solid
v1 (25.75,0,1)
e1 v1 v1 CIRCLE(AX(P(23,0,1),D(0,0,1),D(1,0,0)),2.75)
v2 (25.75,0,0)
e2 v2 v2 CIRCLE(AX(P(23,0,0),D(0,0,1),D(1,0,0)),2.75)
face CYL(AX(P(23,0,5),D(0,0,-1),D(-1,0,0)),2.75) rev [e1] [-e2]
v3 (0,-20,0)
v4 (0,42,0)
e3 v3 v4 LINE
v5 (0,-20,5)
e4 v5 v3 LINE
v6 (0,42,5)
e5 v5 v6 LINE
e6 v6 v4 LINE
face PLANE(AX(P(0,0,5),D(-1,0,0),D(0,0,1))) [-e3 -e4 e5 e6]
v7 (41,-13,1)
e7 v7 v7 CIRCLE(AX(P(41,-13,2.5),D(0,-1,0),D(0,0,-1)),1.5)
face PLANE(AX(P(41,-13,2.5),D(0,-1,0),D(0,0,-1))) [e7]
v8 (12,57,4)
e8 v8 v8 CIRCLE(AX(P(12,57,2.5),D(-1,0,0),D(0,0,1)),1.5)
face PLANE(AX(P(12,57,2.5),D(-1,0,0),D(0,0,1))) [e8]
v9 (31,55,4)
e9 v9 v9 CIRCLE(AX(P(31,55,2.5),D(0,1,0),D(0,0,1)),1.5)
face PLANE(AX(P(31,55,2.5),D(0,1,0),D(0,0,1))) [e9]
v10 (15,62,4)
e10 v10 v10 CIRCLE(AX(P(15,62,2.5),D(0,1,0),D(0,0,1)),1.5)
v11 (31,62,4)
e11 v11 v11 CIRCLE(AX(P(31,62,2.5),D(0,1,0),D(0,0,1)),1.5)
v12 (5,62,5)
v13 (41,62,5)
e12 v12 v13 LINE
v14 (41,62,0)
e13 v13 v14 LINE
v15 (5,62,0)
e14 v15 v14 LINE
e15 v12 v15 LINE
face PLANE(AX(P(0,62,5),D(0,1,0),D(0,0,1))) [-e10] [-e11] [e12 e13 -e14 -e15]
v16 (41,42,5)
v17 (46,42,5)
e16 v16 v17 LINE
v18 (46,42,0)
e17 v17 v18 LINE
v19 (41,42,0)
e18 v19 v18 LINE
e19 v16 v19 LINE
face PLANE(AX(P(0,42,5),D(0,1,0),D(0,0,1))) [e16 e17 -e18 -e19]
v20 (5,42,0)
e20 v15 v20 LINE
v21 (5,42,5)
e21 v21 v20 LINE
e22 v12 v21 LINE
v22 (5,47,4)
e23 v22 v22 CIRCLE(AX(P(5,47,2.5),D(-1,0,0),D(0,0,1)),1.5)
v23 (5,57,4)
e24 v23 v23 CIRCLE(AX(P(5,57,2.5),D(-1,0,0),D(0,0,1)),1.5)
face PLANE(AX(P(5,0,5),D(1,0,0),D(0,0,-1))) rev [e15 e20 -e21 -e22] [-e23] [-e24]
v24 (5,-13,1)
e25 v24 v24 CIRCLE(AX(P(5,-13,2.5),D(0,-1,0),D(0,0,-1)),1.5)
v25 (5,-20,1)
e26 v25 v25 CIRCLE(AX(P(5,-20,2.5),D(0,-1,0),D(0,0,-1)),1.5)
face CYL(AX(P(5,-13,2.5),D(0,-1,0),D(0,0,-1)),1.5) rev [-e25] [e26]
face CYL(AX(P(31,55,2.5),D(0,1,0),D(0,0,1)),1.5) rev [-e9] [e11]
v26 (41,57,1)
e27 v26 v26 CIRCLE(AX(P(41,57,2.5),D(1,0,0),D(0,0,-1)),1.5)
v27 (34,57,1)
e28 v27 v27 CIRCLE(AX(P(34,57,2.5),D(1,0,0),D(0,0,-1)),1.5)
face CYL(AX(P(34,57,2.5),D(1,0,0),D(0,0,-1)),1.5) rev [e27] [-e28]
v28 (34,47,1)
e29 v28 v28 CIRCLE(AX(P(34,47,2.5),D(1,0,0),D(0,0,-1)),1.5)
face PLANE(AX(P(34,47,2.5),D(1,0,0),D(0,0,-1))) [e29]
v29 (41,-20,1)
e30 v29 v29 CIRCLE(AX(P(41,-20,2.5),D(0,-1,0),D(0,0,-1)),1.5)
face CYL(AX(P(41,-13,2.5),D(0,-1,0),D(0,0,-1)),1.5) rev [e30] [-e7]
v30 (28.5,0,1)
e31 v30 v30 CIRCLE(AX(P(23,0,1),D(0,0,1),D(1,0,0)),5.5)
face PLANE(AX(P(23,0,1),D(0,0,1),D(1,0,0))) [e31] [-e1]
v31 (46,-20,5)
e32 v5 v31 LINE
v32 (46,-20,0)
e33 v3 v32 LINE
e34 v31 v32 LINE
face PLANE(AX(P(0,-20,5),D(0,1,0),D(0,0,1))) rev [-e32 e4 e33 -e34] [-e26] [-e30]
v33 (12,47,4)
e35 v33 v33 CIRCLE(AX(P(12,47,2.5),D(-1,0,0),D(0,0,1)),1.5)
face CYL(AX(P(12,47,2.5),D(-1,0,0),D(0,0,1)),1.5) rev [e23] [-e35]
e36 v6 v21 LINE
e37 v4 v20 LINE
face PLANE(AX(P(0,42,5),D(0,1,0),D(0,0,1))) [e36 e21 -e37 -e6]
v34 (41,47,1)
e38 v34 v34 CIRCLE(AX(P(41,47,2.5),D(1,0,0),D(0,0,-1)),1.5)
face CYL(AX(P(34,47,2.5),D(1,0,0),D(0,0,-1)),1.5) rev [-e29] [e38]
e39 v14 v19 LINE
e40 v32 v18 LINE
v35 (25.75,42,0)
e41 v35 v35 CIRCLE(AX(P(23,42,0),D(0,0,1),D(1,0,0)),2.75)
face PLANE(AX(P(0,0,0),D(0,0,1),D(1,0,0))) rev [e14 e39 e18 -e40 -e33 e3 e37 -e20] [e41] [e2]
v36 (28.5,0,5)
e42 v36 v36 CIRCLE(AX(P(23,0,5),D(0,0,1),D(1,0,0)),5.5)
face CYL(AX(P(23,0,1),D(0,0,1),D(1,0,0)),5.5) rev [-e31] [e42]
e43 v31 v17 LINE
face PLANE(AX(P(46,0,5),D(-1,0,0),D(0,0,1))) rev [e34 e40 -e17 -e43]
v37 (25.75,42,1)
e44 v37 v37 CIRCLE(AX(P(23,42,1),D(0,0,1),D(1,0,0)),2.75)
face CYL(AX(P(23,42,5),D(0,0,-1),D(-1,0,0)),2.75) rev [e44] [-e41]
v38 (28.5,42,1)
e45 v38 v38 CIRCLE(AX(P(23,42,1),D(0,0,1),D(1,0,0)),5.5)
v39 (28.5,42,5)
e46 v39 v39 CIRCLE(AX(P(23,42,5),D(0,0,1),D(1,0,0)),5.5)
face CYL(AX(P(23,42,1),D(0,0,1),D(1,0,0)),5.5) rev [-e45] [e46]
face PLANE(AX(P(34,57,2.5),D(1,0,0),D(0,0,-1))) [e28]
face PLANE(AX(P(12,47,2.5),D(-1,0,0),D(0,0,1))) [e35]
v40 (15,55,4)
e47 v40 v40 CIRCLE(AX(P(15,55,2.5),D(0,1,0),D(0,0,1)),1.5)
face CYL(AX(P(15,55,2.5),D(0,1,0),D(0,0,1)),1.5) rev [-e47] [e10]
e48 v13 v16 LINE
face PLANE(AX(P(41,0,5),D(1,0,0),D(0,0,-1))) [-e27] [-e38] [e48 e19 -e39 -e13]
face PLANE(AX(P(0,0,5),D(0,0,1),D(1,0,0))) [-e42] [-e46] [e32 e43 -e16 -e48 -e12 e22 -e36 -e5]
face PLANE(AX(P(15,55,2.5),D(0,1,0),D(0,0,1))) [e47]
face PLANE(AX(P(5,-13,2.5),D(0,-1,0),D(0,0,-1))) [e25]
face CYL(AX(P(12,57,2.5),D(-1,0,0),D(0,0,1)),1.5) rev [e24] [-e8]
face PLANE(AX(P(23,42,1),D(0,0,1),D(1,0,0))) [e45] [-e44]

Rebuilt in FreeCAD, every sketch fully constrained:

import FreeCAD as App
import Part
import Sketcher

V = App.Vector
Q = App.Units.Quantity


def add_polygon(sketch, points):
    """Adds a closed chain of lines whose ends are joined by coincident constraints."""
    first, n = sketch.GeometryCount, len(points)
    for a, b in zip(points, points[1:] + points[:1]):
        sketch.addGeometry(Part.LineSegment(App.Vector(*a, 0), App.Vector(*b, 0)), False)
    for i in range(n):
        sketch.addConstraint(Sketcher.Constraint("Coincident", first + i, 2, first + (i + 1) % n, 1))

doc = App.newDocument("Part")
params = doc.addObject("Spreadsheet::Sheet", "Params")
for row, (alias, value) in enumerate([
    ("sketch1_diameter", "5.5 mm"),
    ("sketch1_width", "46 mm"),
    ("sketch1_width2", "5 mm"),
    ("sketch1_height", "62 mm"),
    ("sketch1_height2", "20 mm"),
    ("pad1_length", "5 mm"),
    ("sketch2_diameter", "11 mm"),
    ("pocket1_length", "4 mm"),
    ("sketch3_diameter", "3 mm"),
    ("pocket2_length", "7 mm"),
    ("sketch4_diameter", "3 mm"),
    ("pocket3_length", "7 mm"),
    ("sketch5_diameter", "3 mm"),
    ("pocket4_length", "7 mm"),
    ("sketch6_diameter", "3 mm"),
    ("pocket5_length", "7 mm"),
], start=1):
    params.set(f"A{row}", alias)
    params.set(f"B{row}", "=" + value)
    params.setAlias(f"B{row}", alias)

body = doc.addObject("PartDesign::Body", "Body")

# Sketch on XY plane
sketch1 = body.newObject("Sketcher::SketchObject", "Sketch")
sketch1.AttachmentSupport = (doc.getObject("XY_Plane"), [""])
sketch1.MapMode = "FlatFace"
add_polygon(sketch1, [(0, 42), (0, -20), (46, -20), (46, 42), (41, 42), (41, 62), (5, 62), (5, 42)])  # lines 0-7
sketch1.addGeometry(Part.Circle(V(23, 0, 0), V(0, 0, 1), 2.8), False)  # 8
sketch1.addGeometry(Part.Circle(V(23, 42, 0), V(0, 0, 1), 2.8), False)  # 9
sketch1.addConstraint(Sketcher.Constraint("Vertical", 0))
sketch1.addConstraint(Sketcher.Constraint("Horizontal", 1))
sketch1.addConstraint(Sketcher.Constraint("Vertical", 2))
sketch1.addConstraint(Sketcher.Constraint("Horizontal", 3))
sketch1.addConstraint(Sketcher.Constraint("Vertical", 4))
sketch1.addConstraint(Sketcher.Constraint("Horizontal", 5))
sketch1.addConstraint(Sketcher.Constraint("Vertical", 6))
sketch1.addConstraint(Sketcher.Constraint("Horizontal", 7))
sketch1.addConstraint(Sketcher.Constraint("Equal", 8, 9))
sketch1.addConstraint(Sketcher.Constraint("PointOnObject", 8, 3, -1))
sketch1.addConstraint(Sketcher.Constraint("PointOnObject", 0, 2, -2))
sketch1.addConstraint(Sketcher.Constraint("Horizontal", 9, 3, 2, 2))
sketch1.addConstraint(Sketcher.Constraint("Horizontal", 3, 2, 6, 2))
sketch1.addConstraint(Sketcher.Constraint("Vertical", 8, 3, 9, 3))
sketch1.addConstraint(Sketcher.Constraint("Equal", 3, 7))
sketch1.addConstraint(Sketcher.Constraint("Diameter", 8, Q("5.5 mm")))
sketch1.addConstraint(Sketcher.Constraint("DistanceX", 1, 1, 1, 2, Q("46 mm")))
sketch1.addConstraint(Sketcher.Constraint("DistanceX", 3, 2, 3, 1, Q("5 mm")))
sketch1.addConstraint(Sketcher.Constraint("DistanceY", 0, 2, 0, 1, Q("62 mm")))
sketch1.addConstraint(Sketcher.Constraint("DistanceY", 4, 1, 4, 2, Q("20 mm")))
sketch1.addConstraint(Sketcher.Constraint("DistanceX", -1, 1, 8, 3, Q("23 mm")))
sketch1.addConstraint(Sketcher.Constraint("DistanceY", -1, 1, 9, 3, Q("42 mm")))
sketch1.setExpression("Constraints[23]", "Params.sketch1_diameter")
sketch1.setExpression("Constraints[24]", "Params.sketch1_width")
sketch1.setExpression("Constraints[25]", "Params.sketch1_width2")
sketch1.setExpression("Constraints[26]", "Params.sketch1_height")
sketch1.setExpression("Constraints[27]", "Params.sketch1_height2")
pad1 = body.newObject("PartDesign::Pad", "Pad")
pad1.Profile = sketch1
pad1.setExpression("Length", "Params.pad1_length")

# Sketch on XY plane
sketch2 = body.newObject("Sketcher::SketchObject", "Sketch001")
sketch2.AttachmentSupport = (doc.getObject("XY_Plane"), [""])
sketch2.MapMode = "FlatFace"
sketch2.AttachmentOffset = App.Placement(V(0, 0, 5), App.Rotation())
sketch2.addGeometry(Part.Circle(V(23, 42, 0), V(0, 0, 1), 6), False)
sketch2.addGeometry(Part.Circle(V(23, 0, 0), V(0, 0, 1), 6), False)
sketch2.addConstraint(Sketcher.Constraint("Equal", 0, 1))
sketch2.addConstraint(Sketcher.Constraint("PointOnObject", 1, 3, -1))
sketch2.addConstraint(Sketcher.Constraint("Vertical", 0, 3, 1, 3))
sketch2.addConstraint(Sketcher.Constraint("Diameter", 0, Q("11 mm")))
sketch2.addConstraint(Sketcher.Constraint("DistanceX", -1, 1, 0, 3, Q("23 mm")))
sketch2.addConstraint(Sketcher.Constraint("DistanceY", -1, 1, 0, 3, Q("42 mm")))
sketch2.setExpression("Constraints[3]", "Params.sketch2_diameter")
pocket1 = body.newObject("PartDesign::Pocket", "Pocket")
pocket1.Profile = sketch2
pocket1.setExpression("Length", "Params.pocket1_length")

# Sketch on XZ plane
sketch3 = body.newObject("Sketcher::SketchObject", "Sketch002")
sketch3.AttachmentSupport = (doc.getObject("XZ_Plane"), [""])
sketch3.MapMode = "FlatFace"
sketch3.AttachmentOffset = App.Placement(V(0, 0, 20), App.Rotation())
sketch3.addGeometry(Part.Circle(V(5, 2.5, 0), V(0, 0, 1), 1.5), False)
sketch3.addGeometry(Part.Circle(V(41, 2.5, 0), V(0, 0, 1), 1.5), False)
sketch3.addConstraint(Sketcher.Constraint("Equal", 0, 1))
sketch3.addConstraint(Sketcher.Constraint("Horizontal", 0, 3, 1, 3))
sketch3.addConstraint(Sketcher.Constraint("Diameter", 0, Q("3 mm")))
sketch3.addConstraint(Sketcher.Constraint("DistanceX", -1, 1, 0, 3, Q("5 mm")))
sketch3.addConstraint(Sketcher.Constraint("DistanceX", -1, 1, 1, 3, Q("41 mm")))
sketch3.addConstraint(Sketcher.Constraint("DistanceY", -1, 1, 0, 3, Q("2.5 mm")))
sketch3.setExpression("Constraints[2]", "Params.sketch3_diameter")
pocket2 = body.newObject("PartDesign::Pocket", "Pocket001")
pocket2.Profile = sketch3
pocket2.setExpression("Length", "Params.pocket2_length")

# Sketch on YZ plane
sketch4 = body.newObject("Sketcher::SketchObject", "Sketch003")
sketch4.AttachmentSupport = (doc.getObject("YZ_Plane"), [""])
sketch4.MapMode = "FlatFace"
sketch4.AttachmentOffset = App.Placement(V(0, 0, 5), App.Rotation())
sketch4.addGeometry(Part.Circle(V(47, 2.5, 0), V(0, 0, 1), 1.5), False)
sketch4.addGeometry(Part.Circle(V(57, 2.5, 0), V(0, 0, 1), 1.5), False)
sketch4.addConstraint(Sketcher.Constraint("Equal", 0, 1))
sketch4.addConstraint(Sketcher.Constraint("Horizontal", 0, 3, 1, 3))
sketch4.addConstraint(Sketcher.Constraint("Diameter", 0, Q("3 mm")))
sketch4.addConstraint(Sketcher.Constraint("DistanceX", -1, 1, 0, 3, Q("47 mm")))
sketch4.addConstraint(Sketcher.Constraint("DistanceX", -1, 1, 1, 3, Q("57 mm")))
sketch4.addConstraint(Sketcher.Constraint("DistanceY", -1, 1, 0, 3, Q("2.5 mm")))
sketch4.setExpression("Constraints[2]", "Params.sketch4_diameter")
pocket3 = body.newObject("PartDesign::Pocket", "Pocket002")
pocket3.Profile = sketch4
pocket3.setExpression("Length", "Params.pocket3_length")
pocket3.Reversed = True

# Sketch on YZ plane
sketch5 = body.newObject("Sketcher::SketchObject", "Sketch004")
sketch5.AttachmentSupport = (doc.getObject("YZ_Plane"), [""])
sketch5.MapMode = "FlatFace"
sketch5.AttachmentOffset = App.Placement(V(0, 0, 34), App.Rotation())
sketch5.addGeometry(Part.Circle(V(47, 2.5, 0), V(0, 0, 1), 1.5), False)
sketch5.addGeometry(Part.Circle(V(57, 2.5, 0), V(0, 0, 1), 1.5), False)
sketch5.addConstraint(Sketcher.Constraint("Equal", 0, 1))
sketch5.addConstraint(Sketcher.Constraint("Horizontal", 0, 3, 1, 3))
sketch5.addConstraint(Sketcher.Constraint("Diameter", 0, Q("3 mm")))
sketch5.addConstraint(Sketcher.Constraint("DistanceX", -1, 1, 0, 3, Q("47 mm")))
sketch5.addConstraint(Sketcher.Constraint("DistanceX", -1, 1, 1, 3, Q("57 mm")))
sketch5.addConstraint(Sketcher.Constraint("DistanceY", -1, 1, 0, 3, Q("2.5 mm")))
sketch5.setExpression("Constraints[2]", "Params.sketch5_diameter")
pocket4 = body.newObject("PartDesign::Pocket", "Pocket003")
pocket4.Profile = sketch5
pocket4.setExpression("Length", "Params.pocket4_length")
pocket4.Reversed = True

# Sketch on XZ plane
sketch6 = body.newObject("Sketcher::SketchObject", "Sketch005")
sketch6.AttachmentSupport = (doc.getObject("XZ_Plane"), [""])
sketch6.MapMode = "FlatFace"
sketch6.AttachmentOffset = App.Placement(V(0, 0, -62), App.Rotation())
sketch6.addGeometry(Part.Circle(V(15, 2.5, 0), V(0, 0, 1), 1.5), False)
sketch6.addGeometry(Part.Circle(V(31, 2.5, 0), V(0, 0, 1), 1.5), False)
sketch6.addConstraint(Sketcher.Constraint("Equal", 0, 1))
sketch6.addConstraint(Sketcher.Constraint("Horizontal", 0, 3, 1, 3))
sketch6.addConstraint(Sketcher.Constraint("Diameter", 0, Q("3 mm")))
sketch6.addConstraint(Sketcher.Constraint("DistanceX", -1, 1, 0, 3, Q("15 mm")))
sketch6.addConstraint(Sketcher.Constraint("DistanceX", -1, 1, 1, 3, Q("31 mm")))
sketch6.addConstraint(Sketcher.Constraint("DistanceY", -1, 1, 0, 3, Q("2.5 mm")))
sketch6.setExpression("Constraints[2]", "Params.sketch6_diameter")
pocket5 = body.newObject("PartDesign::Pocket", "Pocket004")
pocket5.Profile = sketch6
pocket5.setExpression("Length", "Params.pocket5_length")
pocket5.Reversed = True

doc.recompute()
